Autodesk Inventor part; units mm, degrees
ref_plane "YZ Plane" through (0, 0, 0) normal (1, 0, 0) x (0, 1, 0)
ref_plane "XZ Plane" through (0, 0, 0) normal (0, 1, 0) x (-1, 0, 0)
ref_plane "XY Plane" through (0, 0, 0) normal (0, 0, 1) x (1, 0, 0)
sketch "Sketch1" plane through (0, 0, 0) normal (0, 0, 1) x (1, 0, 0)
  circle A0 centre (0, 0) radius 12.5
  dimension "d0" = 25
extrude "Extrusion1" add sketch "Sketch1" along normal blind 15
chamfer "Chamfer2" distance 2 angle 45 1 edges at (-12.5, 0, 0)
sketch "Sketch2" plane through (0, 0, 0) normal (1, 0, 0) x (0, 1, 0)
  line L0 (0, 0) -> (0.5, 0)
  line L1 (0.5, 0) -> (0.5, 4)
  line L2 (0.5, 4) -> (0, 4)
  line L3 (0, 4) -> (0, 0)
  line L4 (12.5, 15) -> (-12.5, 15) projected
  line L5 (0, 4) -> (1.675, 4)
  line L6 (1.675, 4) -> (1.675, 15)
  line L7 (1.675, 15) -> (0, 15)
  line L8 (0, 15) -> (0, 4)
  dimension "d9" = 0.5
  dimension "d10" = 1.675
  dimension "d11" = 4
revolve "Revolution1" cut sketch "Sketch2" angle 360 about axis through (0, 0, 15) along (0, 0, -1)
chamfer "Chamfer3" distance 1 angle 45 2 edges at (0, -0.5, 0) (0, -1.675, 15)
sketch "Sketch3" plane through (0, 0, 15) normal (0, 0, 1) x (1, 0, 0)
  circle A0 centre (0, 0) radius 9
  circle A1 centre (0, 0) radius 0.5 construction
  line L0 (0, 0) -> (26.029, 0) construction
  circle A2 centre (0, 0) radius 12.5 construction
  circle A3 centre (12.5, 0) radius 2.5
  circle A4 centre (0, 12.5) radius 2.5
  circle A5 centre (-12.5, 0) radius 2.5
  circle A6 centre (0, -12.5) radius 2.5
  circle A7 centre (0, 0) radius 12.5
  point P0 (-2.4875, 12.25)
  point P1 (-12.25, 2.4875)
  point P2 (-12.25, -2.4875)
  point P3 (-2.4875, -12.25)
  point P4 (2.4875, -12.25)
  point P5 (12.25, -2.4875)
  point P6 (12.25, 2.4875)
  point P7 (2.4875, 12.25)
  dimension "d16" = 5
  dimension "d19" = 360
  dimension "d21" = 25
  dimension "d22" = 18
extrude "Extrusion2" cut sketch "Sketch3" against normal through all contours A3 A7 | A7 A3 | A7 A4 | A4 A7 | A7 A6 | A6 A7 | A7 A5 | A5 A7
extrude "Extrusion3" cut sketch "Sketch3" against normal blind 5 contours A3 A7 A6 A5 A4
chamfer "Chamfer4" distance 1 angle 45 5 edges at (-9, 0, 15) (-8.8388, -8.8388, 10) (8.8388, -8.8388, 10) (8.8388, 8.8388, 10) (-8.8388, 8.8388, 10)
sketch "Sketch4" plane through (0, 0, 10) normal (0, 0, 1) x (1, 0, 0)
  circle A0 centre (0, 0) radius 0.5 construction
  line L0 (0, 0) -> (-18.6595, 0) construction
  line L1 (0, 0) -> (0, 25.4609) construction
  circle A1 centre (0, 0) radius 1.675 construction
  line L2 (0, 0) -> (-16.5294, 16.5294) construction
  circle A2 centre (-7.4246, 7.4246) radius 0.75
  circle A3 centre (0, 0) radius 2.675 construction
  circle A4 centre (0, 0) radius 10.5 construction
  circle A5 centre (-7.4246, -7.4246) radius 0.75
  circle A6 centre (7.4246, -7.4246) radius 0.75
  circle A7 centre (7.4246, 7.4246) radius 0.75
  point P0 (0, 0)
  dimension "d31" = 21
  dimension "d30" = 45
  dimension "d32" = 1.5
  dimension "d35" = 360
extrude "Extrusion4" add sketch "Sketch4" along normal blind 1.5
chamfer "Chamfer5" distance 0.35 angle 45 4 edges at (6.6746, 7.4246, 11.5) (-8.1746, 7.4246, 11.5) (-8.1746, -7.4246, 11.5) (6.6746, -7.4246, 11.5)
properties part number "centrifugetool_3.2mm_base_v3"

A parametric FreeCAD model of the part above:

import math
import FreeCAD as App
import Part
import Sketcher
Q = App.Units.Quantity


def edges_at(feature, points):
    """Names of the edges that pass closest to the given points."""
    edges = feature.Shape.Edges
    near = lambda p: min(range(len(edges)), key=lambda i: edges[i].distToShape(Part.Vertex(*p))[0])
    return sorted({f"Edge{near(p) + 1}" for p in points})

doc = App.newDocument("Part")
body = doc.addObject("PartDesign::Body", "Body")

sketch1 = body.newObject("Sketcher::SketchObject", "Sketch")
sketch1.AttachmentSupport = (doc.getObject("XY_Plane"), [""])
sketch1.MapMode = "FlatFace"
sketch1.addGeometry(Part.Circle(App.Vector(0, 0, 0), App.Vector(0, 0, 1), 12), False)
sketch1.addConstraint(Sketcher.Constraint("Coincident", 0, 3, -1, 1))
sketch1.addConstraint(Sketcher.Constraint("Diameter", 0, Q("25 mm")))
pad1 = body.newObject("PartDesign::Pad", "Pad")
pad1.Profile = sketch1
pad1.Length = 15
doc.recompute()

chamfer = body.newObject("PartDesign::Chamfer", "Chamfer")
chamfer.Base = (pad1, edges_at(pad1, [(-12.5, 0, 0)]))
chamfer.Size = 2

sketch2 = body.newObject("Sketcher::SketchObject", "Sketch001")
sketch2.AttachmentSupport = (doc.getObject("YZ_Plane"), [""])
sketch2.MapMode = "FlatFace"
sketch2.addGeometry(Part.LineSegment(App.Vector(0, 0, 0), App.Vector(0.5, 0, 0)), False)
sketch2.addGeometry(Part.LineSegment(App.Vector(0.5, 0, 0), App.Vector(0.5, 4, 0)), False)
sketch2.addGeometry(Part.LineSegment(App.Vector(0.5, 4, 0), App.Vector(1.7, 4, 0)), False)
sketch2.addGeometry(Part.LineSegment(App.Vector(1.7, 4, 0), App.Vector(1.7, 15, 0)), False)
sketch2.addGeometry(Part.LineSegment(App.Vector(1.7, 15, 0), App.Vector(0, 15, 0)), False)
sketch2.addGeometry(Part.LineSegment(App.Vector(0, 15, 0), App.Vector(0, 0, 0)), False)
sketch2.addConstraint(Sketcher.Constraint("Coincident", 0, 2, 1, 1))
sketch2.addConstraint(Sketcher.Constraint("Coincident", 1, 2, 2, 1))
sketch2.addConstraint(Sketcher.Constraint("Coincident", 2, 2, 3, 1))
sketch2.addConstraint(Sketcher.Constraint("Coincident", 3, 2, 4, 1))
sketch2.addConstraint(Sketcher.Constraint("Coincident", 4, 2, 5, 1))
sketch2.addConstraint(Sketcher.Constraint("Coincident", 5, 2, 0, 1))
sketch2.addConstraint(Sketcher.Constraint("Horizontal", 0))
sketch2.addConstraint(Sketcher.Constraint("Vertical", 1))
sketch2.addConstraint(Sketcher.Constraint("Horizontal", 2))
sketch2.addConstraint(Sketcher.Constraint("Vertical", 3))
sketch2.addConstraint(Sketcher.Constraint("Horizontal", 4))
sketch2.addConstraint(Sketcher.Constraint("Vertical", 5))
sketch2.addConstraint(Sketcher.Constraint("Coincident", 5, 2, -1, 1))
sketch2.addConstraint(Sketcher.Constraint("DistanceY", 1, 1, 1, 2, Q("4 mm")))
sketch2.addConstraint(Sketcher.Constraint("DistanceX", 0, 1, 0, 2, Q("0.5 mm")))
sketch2.addConstraint(Sketcher.Constraint("DistanceX", 4, 2, 4, 1, Q("1.675 mm")))
sketch2.addConstraint(Sketcher.Constraint("DistanceY", 3, 1, 3, 2, Q("11 mm")))
groove = body.newObject("PartDesign::Groove", "Groove")
groove.Profile = sketch2
groove.ReferenceAxis = (sketch2, ["V_Axis"])
groove.Angle = 360
doc.recompute()

chamfer2 = body.newObject("PartDesign::Chamfer", "Chamfer001")
chamfer2.Base = (groove, edges_at(groove, [(0, -0.5, 0), (0, -1.675, 15)]))
chamfer2.Size = 1

sketch3 = body.newObject("Sketcher::SketchObject", "Sketch002")
sketch3.AttachmentSupport = (doc.getObject("XY_Plane"), [""])
sketch3.MapMode = "FlatFace"
sketch3.AttachmentOffset = App.Placement(App.Vector(0, 0, 15), App.Rotation())
sketch3.addGeometry(Part.Circle(App.Vector(12.5, 0, 0), App.Vector(0, 0, 1), 2.5), False)
sketch3.addGeometry(Part.Circle(App.Vector(0, 12.5, 0), App.Vector(0, 0, 1), 2.5), False)
sketch3.addGeometry(Part.Circle(App.Vector(0, -12.5, 0), App.Vector(0, 0, 1), 2.5), False)
sketch3.addGeometry(Part.Circle(App.Vector(-12.5, 0, 0), App.Vector(0, 0, 1), 2.5), False)
sketch3.addConstraint(Sketcher.Constraint("Equal", 0, 1))
sketch3.addConstraint(Sketcher.Constraint("Equal", 1, 2))
sketch3.addConstraint(Sketcher.Constraint("Equal", 2, 3))
sketch3.addConstraint(Sketcher.Constraint("Symmetric", 1, 3, 2, 3, -1, 1))
sketch3.addConstraint(Sketcher.Constraint("Symmetric", 0, 3, 3, 3, -1, 1))
sketch3.addConstraint(Sketcher.Constraint("PointOnObject", 0, 3, -1))
sketch3.addConstraint(Sketcher.Constraint("PointOnObject", 1, 3, -2))
sketch3.addConstraint(Sketcher.Constraint("Diameter", 0, Q("5 mm")))
sketch3.addConstraint(Sketcher.Constraint("DistanceY", 2, 3, 1, 3, Q("25 mm")))
sketch3.addConstraint(Sketcher.Constraint("DistanceX", 3, 3, 0, 3, Q("25 mm")))
pocket1 = body.newObject("PartDesign::Pocket", "Pocket")
pocket1.Profile = sketch3
pocket1.Type = "ThroughAll"

sketch4 = body.newObject("Sketcher::SketchObject", "Sketch003")
sketch4.AttachmentSupport = (doc.getObject("XY_Plane"), [""])
sketch4.MapMode = "FlatFace"
sketch4.AttachmentOffset = App.Placement(App.Vector(0, 0, 15), App.Rotation())
sketch4.addGeometry(Part.ArcOfCircle(Part.Circle(App.Vector(12.5, 0, 0), App.Vector(0, 0, 1), 2.5), math.radians(96), math.radians(264)), False)
sketch4.addGeometry(Part.ArcOfCircle(Part.Circle(App.Vector(0, 0, 0), App.Vector(0, 0, 1), 12.5), math.radians(11), math.radians(79)), False)
sketch4.addGeometry(Part.ArcOfCircle(Part.Circle(App.Vector(0, 12.5, 0), App.Vector(0, 0, 1), 2.5), math.radians(-174), math.radians(-6)), False)
sketch4.addGeometry(Part.ArcOfCircle(Part.Circle(App.Vector(0, 0, 0), App.Vector(0, 0, 1), 12.5), math.radians(101), math.radians(169)), False)
sketch4.addGeometry(Part.ArcOfCircle(Part.Circle(App.Vector(-12.5, 0, 0), App.Vector(0, 0, 1), 2.5), math.radians(-84), math.radians(84)), False)
sketch4.addGeometry(Part.ArcOfCircle(Part.Circle(App.Vector(0, 0, 0), App.Vector(0, 0, 1), 12.5), math.radians(-169), math.radians(-101)), False)
sketch4.addGeometry(Part.ArcOfCircle(Part.Circle(App.Vector(0, -12.5, 0), App.Vector(0, 0, 1), 2.5), math.radians(6), math.radians(174)), False)
sketch4.addGeometry(Part.ArcOfCircle(Part.Circle(App.Vector(0, 0, 0), App.Vector(0, 0, 1), 12.5), math.radians(-79), math.radians(-11)), False)
sketch4.addGeometry(Part.Circle(App.Vector(0, 0, 0), App.Vector(0, 0, 1), 9), False)
sketch4.addConstraint(Sketcher.Constraint("Coincident", 0, 1, 1, 1))
sketch4.addConstraint(Sketcher.Constraint("Coincident", 1, 2, 2, 2))
sketch4.addConstraint(Sketcher.Constraint("Coincident", 2, 1, 3, 1))
sketch4.addConstraint(Sketcher.Constraint("Coincident", 3, 2, 4, 2))
sketch4.addConstraint(Sketcher.Constraint("Coincident", 4, 1, 5, 1))
sketch4.addConstraint(Sketcher.Constraint("Coincident", 5, 2, 6, 2))
sketch4.addConstraint(Sketcher.Constraint("Coincident", 6, 1, 7, 1))
sketch4.addConstraint(Sketcher.Constraint("Coincident", 7, 2, 0, 2))
sketch4.addConstraint(Sketcher.Constraint("Coincident", 1, 3, -1, 1))
sketch4.addConstraint(Sketcher.Constraint("Coincident", 3, 3, -1, 1))
sketch4.addConstraint(Sketcher.Constraint("Coincident", 5, 3, -1, 1))
sketch4.addConstraint(Sketcher.Constraint("Coincident", 7, 3, -1, 1))
sketch4.addConstraint(Sketcher.Constraint("Coincident", 8, 3, -1, 1))
sketch4.addConstraint(Sketcher.Constraint("Equal", 0, 2))
sketch4.addConstraint(Sketcher.Constraint("Equal", 1, 3))
sketch4.addConstraint(Sketcher.Constraint("Equal", 2, 4))
sketch4.addConstraint(Sketcher.Constraint("Equal", 3, 5))
sketch4.addConstraint(Sketcher.Constraint("Equal", 4, 6))
sketch4.addConstraint(Sketcher.Constraint("Equal", 5, 7))
sketch4.addConstraint(Sketcher.Constraint("Symmetric", 0, 3, 4, 3, -1, 1))
sketch4.addConstraint(Sketcher.Constraint("Symmetric", 2, 3, 6, 3, -1, 1))
sketch4.addConstraint(Sketcher.Constraint("PointOnObject", 0, 3, -1))
sketch4.addConstraint(Sketcher.Constraint("PointOnObject", 2, 3, -2))
sketch4.addConstraint(Sketcher.Constraint("Diameter", 8, Q("18 mm")))
sketch4.addConstraint(Sketcher.Constraint("Radius", 0, Q("2.5 mm")))
sketch4.addConstraint(Sketcher.Constraint("Radius", 1, Q("12.5 mm")))
sketch4.addConstraint(Sketcher.Constraint("DistanceX", 4, 3, 0, 3, Q("25 mm")))
sketch4.addConstraint(Sketcher.Constraint("DistanceY", -1, 1, 2, 3, Q("12.5 mm")))
pocket2 = body.newObject("PartDesign::Pocket", "Pocket001")
pocket2.Profile = sketch4
pocket2.Length = 5
doc.recompute()

chamfer3 = body.newObject("PartDesign::Chamfer", "Chamfer002")
chamfer3.Base = (pocket2, edges_at(pocket2, [
    (-9, 0, 15),
    (-8.839, -8.839, 10),
    (8.839, -8.839, 10),
    (8.839, 8.839, 10),
    (-8.839, 8.839, 10),
]))
chamfer3.Size = 1

sketch5 = body.newObject("Sketcher::SketchObject", "Sketch004")
sketch5.AttachmentSupport = (doc.getObject("XY_Plane"), [""])
sketch5.MapMode = "FlatFace"
sketch5.AttachmentOffset = App.Placement(App.Vector(0, 0, 10), App.Rotation())
sketch5.addGeometry(Part.Circle(App.Vector(-7.4, 7.4, 0), App.Vector(0, 0, 1), 0.8), False)
sketch5.addGeometry(Part.Circle(App.Vector(-7.4, -7.4, 0), App.Vector(0, 0, 1), 0.8), False)
sketch5.addGeometry(Part.Circle(App.Vector(7.4, -7.4, 0), App.Vector(0, 0, 1), 0.8), False)
sketch5.addGeometry(Part.Circle(App.Vector(7.4, 7.4, 0), App.Vector(0, 0, 1), 0.8), False)
sketch5.addConstraint(Sketcher.Constraint("Equal", 0, 1))
sketch5.addConstraint(Sketcher.Constraint("Equal", 1, 2))
sketch5.addConstraint(Sketcher.Constraint("Equal", 2, 3))
sketch5.addConstraint(Sketcher.Constraint("Symmetric", 0, 3, 2, 3, -1, 1))
sketch5.addConstraint(Sketcher.Constraint("Symmetric", 1, 3, 3, 3, -1, 1))
sketch5.addConstraint(Sketcher.Constraint("Symmetric", 1, 3, 2, 3, -2))
sketch5.addConstraint(Sketcher.Constraint("Diameter", 0, Q("1.5 mm")))
sketch5.addConstraint(Sketcher.Constraint("DistanceX", 0, 3, -1, 1, Q("7.4246 mm")))
sketch5.addConstraint(Sketcher.Constraint("DistanceY", -1, 1, 0, 3, Q("7.4246 mm")))
pad2 = body.newObject("PartDesign::Pad", "Pad001")
pad2.Profile = sketch5
pad2.Length = 1.5
doc.recompute()

chamfer4 = body.newObject("PartDesign::Chamfer", "Chamfer003")
chamfer4.Base = (pad2, edges_at(pad2, [
    (6.675, 7.425, 11.5),
    (-8.175, 7.425, 11.5),
    (-8.175, -7.425, 11.5),
    (6.675, -7.425, 11.5),
]))
chamfer4.Size = 0.35

doc.recompute()
